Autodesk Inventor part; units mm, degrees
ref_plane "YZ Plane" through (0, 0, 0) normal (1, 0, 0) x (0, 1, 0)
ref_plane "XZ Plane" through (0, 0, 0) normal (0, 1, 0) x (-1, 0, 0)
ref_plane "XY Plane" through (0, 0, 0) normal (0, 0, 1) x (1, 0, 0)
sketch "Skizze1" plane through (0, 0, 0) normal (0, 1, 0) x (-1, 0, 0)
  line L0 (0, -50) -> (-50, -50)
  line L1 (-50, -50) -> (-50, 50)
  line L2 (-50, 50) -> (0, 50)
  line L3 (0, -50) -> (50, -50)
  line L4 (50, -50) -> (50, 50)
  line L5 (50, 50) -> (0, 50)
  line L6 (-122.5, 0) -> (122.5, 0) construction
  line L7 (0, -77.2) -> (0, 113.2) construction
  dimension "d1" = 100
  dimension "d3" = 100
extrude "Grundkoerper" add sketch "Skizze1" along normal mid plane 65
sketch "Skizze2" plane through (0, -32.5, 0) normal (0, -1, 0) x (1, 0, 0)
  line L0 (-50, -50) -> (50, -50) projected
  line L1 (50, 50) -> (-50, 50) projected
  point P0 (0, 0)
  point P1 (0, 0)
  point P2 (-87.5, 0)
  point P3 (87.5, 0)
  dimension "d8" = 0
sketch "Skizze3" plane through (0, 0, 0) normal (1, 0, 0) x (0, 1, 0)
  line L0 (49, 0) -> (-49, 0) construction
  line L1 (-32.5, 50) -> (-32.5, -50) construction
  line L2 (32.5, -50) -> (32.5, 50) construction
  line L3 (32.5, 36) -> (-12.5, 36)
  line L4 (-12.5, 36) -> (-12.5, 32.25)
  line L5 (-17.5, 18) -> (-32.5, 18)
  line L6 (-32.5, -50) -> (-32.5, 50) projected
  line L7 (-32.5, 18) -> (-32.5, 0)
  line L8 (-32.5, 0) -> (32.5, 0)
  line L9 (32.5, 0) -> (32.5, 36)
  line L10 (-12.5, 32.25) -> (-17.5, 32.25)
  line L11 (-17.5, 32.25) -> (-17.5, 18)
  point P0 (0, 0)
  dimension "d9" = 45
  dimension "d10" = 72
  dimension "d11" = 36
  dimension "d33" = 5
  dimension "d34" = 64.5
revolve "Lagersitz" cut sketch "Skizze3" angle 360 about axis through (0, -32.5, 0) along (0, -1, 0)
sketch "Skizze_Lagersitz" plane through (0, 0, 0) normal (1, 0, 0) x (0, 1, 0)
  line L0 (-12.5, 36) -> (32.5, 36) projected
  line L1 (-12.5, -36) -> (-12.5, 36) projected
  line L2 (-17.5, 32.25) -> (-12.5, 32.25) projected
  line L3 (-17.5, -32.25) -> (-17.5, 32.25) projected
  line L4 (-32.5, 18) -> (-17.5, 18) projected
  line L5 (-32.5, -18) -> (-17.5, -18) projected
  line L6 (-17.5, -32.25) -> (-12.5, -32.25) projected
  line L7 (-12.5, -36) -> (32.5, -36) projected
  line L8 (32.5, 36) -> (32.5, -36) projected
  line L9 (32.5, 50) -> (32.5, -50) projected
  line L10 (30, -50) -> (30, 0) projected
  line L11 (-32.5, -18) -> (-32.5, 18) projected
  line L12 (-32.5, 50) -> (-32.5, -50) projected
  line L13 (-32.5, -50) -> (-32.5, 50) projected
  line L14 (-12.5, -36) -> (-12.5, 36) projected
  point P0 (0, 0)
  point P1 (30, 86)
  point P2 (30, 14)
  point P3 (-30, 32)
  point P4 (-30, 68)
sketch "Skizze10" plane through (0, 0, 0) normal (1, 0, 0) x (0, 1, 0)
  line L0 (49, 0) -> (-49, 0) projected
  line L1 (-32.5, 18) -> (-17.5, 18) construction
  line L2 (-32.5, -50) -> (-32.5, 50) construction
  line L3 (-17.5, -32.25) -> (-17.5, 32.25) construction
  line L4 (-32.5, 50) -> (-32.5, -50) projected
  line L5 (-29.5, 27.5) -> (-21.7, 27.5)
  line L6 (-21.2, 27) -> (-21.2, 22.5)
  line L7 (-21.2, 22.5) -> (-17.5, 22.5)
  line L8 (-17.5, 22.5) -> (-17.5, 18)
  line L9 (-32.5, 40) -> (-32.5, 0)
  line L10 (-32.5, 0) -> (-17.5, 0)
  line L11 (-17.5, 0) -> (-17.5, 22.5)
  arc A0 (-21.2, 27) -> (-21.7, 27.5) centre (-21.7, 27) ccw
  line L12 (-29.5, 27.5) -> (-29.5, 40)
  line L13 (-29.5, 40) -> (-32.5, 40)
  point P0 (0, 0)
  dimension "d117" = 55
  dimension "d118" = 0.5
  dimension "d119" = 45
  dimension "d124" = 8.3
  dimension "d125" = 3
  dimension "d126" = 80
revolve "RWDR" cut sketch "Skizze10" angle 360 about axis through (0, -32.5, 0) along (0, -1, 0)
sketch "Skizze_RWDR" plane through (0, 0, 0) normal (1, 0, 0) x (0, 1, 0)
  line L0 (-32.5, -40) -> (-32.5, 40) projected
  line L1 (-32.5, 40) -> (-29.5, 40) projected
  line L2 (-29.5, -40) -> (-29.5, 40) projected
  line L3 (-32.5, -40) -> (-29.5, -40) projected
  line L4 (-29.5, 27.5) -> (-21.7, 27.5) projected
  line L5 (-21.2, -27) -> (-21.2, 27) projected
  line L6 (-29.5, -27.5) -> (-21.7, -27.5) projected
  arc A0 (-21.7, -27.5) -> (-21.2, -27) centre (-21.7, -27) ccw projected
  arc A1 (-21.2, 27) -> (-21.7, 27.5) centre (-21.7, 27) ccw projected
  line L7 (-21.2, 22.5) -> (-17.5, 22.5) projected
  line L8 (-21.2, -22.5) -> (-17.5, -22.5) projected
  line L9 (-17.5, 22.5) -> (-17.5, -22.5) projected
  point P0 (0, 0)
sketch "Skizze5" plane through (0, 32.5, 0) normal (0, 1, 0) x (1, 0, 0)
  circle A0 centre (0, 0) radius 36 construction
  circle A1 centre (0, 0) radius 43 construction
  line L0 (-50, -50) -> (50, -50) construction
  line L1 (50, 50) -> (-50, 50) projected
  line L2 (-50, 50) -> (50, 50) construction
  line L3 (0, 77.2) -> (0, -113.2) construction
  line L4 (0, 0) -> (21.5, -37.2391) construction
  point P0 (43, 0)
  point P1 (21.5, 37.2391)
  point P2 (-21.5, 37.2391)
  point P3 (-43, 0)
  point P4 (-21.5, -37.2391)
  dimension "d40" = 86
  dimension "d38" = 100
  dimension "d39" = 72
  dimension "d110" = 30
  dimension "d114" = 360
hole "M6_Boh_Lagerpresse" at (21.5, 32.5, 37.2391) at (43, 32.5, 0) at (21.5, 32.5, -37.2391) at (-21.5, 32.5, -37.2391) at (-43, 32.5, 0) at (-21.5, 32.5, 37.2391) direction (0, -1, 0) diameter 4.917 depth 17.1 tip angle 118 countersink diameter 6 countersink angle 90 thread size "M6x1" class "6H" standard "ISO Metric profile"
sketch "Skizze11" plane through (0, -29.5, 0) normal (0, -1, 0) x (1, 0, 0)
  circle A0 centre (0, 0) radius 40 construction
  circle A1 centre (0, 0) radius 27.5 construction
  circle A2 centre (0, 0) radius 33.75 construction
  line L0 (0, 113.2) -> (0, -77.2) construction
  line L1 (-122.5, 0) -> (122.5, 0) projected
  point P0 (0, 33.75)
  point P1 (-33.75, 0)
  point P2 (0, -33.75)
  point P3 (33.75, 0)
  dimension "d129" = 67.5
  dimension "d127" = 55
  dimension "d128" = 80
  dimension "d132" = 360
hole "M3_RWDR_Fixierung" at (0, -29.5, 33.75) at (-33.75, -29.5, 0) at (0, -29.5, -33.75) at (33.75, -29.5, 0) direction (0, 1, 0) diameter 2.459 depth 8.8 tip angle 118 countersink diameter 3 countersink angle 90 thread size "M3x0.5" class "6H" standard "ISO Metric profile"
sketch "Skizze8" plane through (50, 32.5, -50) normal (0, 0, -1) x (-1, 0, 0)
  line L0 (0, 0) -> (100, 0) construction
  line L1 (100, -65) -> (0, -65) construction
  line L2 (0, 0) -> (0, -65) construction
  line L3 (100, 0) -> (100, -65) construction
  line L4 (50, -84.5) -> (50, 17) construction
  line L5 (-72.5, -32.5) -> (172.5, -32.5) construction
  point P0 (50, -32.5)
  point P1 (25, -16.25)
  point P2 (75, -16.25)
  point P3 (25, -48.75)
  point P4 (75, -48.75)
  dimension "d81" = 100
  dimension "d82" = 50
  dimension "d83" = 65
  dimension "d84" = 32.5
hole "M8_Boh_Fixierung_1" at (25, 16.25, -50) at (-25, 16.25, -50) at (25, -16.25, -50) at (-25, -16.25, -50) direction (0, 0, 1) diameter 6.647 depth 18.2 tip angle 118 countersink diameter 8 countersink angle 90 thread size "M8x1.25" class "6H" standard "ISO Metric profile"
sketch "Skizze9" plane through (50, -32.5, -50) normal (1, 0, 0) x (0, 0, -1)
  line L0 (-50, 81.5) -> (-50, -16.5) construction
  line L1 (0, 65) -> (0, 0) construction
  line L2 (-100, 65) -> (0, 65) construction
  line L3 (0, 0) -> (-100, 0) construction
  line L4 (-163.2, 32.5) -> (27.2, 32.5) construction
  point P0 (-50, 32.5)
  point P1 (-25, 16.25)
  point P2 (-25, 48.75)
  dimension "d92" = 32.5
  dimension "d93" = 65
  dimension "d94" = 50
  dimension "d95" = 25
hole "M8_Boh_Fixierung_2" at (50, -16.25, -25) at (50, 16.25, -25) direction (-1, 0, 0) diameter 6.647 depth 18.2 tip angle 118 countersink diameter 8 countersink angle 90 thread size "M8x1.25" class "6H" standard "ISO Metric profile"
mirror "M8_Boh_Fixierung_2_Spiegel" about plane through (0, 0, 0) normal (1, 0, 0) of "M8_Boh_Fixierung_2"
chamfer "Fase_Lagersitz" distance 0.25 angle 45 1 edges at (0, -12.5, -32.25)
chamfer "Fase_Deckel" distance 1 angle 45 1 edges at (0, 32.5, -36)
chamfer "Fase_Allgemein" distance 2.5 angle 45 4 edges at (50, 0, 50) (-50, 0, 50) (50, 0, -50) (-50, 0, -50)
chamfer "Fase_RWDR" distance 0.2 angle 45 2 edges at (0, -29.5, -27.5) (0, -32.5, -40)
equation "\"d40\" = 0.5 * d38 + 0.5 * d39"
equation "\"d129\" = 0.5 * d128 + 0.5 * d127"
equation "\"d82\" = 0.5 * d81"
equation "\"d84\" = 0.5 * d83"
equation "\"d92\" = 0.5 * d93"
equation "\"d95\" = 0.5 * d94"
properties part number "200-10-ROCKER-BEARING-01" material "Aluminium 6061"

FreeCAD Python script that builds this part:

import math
import FreeCAD as App
import Part
import Sketcher

V = App.Vector


def edges_at(feature, points):
    """Names of the edges that pass closest to the given points."""
    edges = feature.Shape.Edges
    near = lambda p: min(range(len(edges)), key=lambda i: edges[i].distToShape(Part.Vertex(*p))[0])
    return sorted({f"Edge{near(p) + 1}" for p in points})


def add_polygon(sketch, points):
    """Adds a closed chain of lines whose ends are joined by coincident constraints."""
    first, n = sketch.GeometryCount, len(points)
    for a, b in zip(points, points[1:] + points[:1]):
        sketch.addGeometry(Part.LineSegment(App.Vector(*a, 0), App.Vector(*b, 0)), False)
    for i in range(n):
        sketch.addConstraint(Sketcher.Constraint("Coincident", first + i, 2, first + (i + 1) % n, 1))

doc = App.newDocument("Part")
body = doc.addObject("PartDesign::Body", "Body")

sketch1 = doc.addObject("Sketcher::SketchObject", "Sketch")
body.addObject(sketch1)
sketch1.AttachmentSupport = (doc.XZ_Plane, [""])
sketch1.MapMode = "FlatFace"
add_polygon(sketch1, [(50, -50), (-50, -50), (-50, 50), (50, 50)])
sketch1.addConstraint(Sketcher.Constraint("Horizontal", 0))
sketch1.addConstraint(Sketcher.Constraint("Vertical", 1))
sketch1.addConstraint(Sketcher.Constraint("Horizontal", 2))
sketch1.addConstraint(Sketcher.Constraint("Vertical", 3))
sketch1.addConstraint(Sketcher.Constraint("Symmetric", 0, 2, 2, 2, -1, 1))
sketch1.addConstraint(Sketcher.Constraint("Equal", 2, 1))
sketch1.addConstraint(Sketcher.Constraint("DistanceX", 0, 2, 0, 1, 100.0))
pad1 = doc.addObject("PartDesign::Pad", "Pad")
body.addObject(pad1)
pad1.Profile = sketch1
pad1.Length = 65
pad1.Midplane = True

sketch2 = doc.addObject("Sketcher::SketchObject", "Sketch001")
body.addObject(sketch2)
sketch2.AttachmentSupport = (doc.YZ_Plane, [""])
sketch2.MapMode = "FlatFace"
add_polygon(sketch2, [(32.5, 0), (32.5, 36), (-12.5, 36), (-12.5, 32.2), (-17.5, 32.2), (-17.5, 18), (-32.5, 18), (-32.5, 0)])
sketch2.addConstraint(Sketcher.Constraint("Vertical", 0))
sketch2.addConstraint(Sketcher.Constraint("Horizontal", 1))
sketch2.addConstraint(Sketcher.Constraint("Vertical", 2))
sketch2.addConstraint(Sketcher.Constraint("Horizontal", 3))
sketch2.addConstraint(Sketcher.Constraint("Vertical", 4))
sketch2.addConstraint(Sketcher.Constraint("Horizontal", 5))
sketch2.addConstraint(Sketcher.Constraint("Vertical", 6))
sketch2.addConstraint(Sketcher.Constraint("Horizontal", 7))
sketch2.addConstraint(Sketcher.Constraint("Symmetric", 6, 2, 7, 2, -1, 1))
sketch2.addConstraint(Sketcher.Constraint("DistanceX", 1, 2, 1, 1, 45.0))
sketch2.addConstraint(Sketcher.Constraint("DistanceX", 3, 2, 3, 1, 5.0))
sketch2.addConstraint(Sketcher.Constraint("DistanceY", 0, 1, 0, 2, 36.0))
sketch2.addConstraint(Sketcher.Constraint("DistanceX", 5, 2, 5, 1, 15.0))
sketch2.addConstraint(Sketcher.Constraint("DistanceY", 6, 2, 6, 1, 18.0))
sketch2.addConstraint(Sketcher.Constraint("DistanceY", 2, 2, 2, 1, 3.75))
groove = doc.addObject("PartDesign::Groove", "Groove")
body.addObject(groove)
groove.Profile = sketch2
groove.ReferenceAxis = (sketch2, ["H_Axis"])
groove.Angle = 360

sketch3 = doc.addObject("Sketcher::SketchObject", "Sketch002")
body.addObject(sketch3)
sketch3.AttachmentSupport = (doc.YZ_Plane, [""])
sketch3.MapMode = "FlatFace"
sketch3.addGeometry(Part.LineSegment(V(-32.5, 0, 0), V(-17.5, 0, 0)), False)
sketch3.addGeometry(Part.LineSegment(V(-17.5, 0, 0), V(-17.5, 22.5, 0)), False)
sketch3.addGeometry(Part.LineSegment(V(-17.5, 22.5, 0), V(-21.2, 22.5, 0)), False)
sketch3.addGeometry(Part.LineSegment(V(-21.2, 22.5, 0), V(-21.2, 27, 0)), False)
sketch3.addGeometry(Part.ArcOfCircle(Part.Circle(V(-21.7, 27, 0), V(0, 0, 1), 0.5), math.radians(0), math.radians(90)), False)
sketch3.addGeometry(Part.LineSegment(V(-21.7, 27.5, 0), V(-29.5, 27.5, 0)), False)
sketch3.addGeometry(Part.LineSegment(V(-29.5, 27.5, 0), V(-29.5, 40, 0)), False)
sketch3.addGeometry(Part.LineSegment(V(-29.5, 40, 0), V(-32.5, 40, 0)), False)
sketch3.addGeometry(Part.LineSegment(V(-32.5, 40, 0), V(-32.5, 0, 0)), False)
sketch3.addConstraint(Sketcher.Constraint("Coincident", 0, 2, 1, 1))
sketch3.addConstraint(Sketcher.Constraint("Coincident", 1, 2, 2, 1))
sketch3.addConstraint(Sketcher.Constraint("Coincident", 2, 2, 3, 1))
sketch3.addConstraint(Sketcher.Constraint("Tangent", 3, 2, 4, 1))
sketch3.addConstraint(Sketcher.Constraint("Tangent", 4, 2, 5, 1))
sketch3.addConstraint(Sketcher.Constraint("Coincident", 5, 2, 6, 1))
sketch3.addConstraint(Sketcher.Constraint("Coincident", 6, 2, 7, 1))
sketch3.addConstraint(Sketcher.Constraint("Coincident", 7, 2, 8, 1))
sketch3.addConstraint(Sketcher.Constraint("Coincident", 8, 2, 0, 1))
sketch3.addConstraint(Sketcher.Constraint("Horizontal", 0))
sketch3.addConstraint(Sketcher.Constraint("Vertical", 1))
sketch3.addConstraint(Sketcher.Constraint("Horizontal", 2))
sketch3.addConstraint(Sketcher.Constraint("Vertical", 3))
sketch3.addConstraint(Sketcher.Constraint("Horizontal", 5))
sketch3.addConstraint(Sketcher.Constraint("Vertical", 6))
sketch3.addConstraint(Sketcher.Constraint("Horizontal", 7))
sketch3.addConstraint(Sketcher.Constraint("Vertical", 8))
sketch3.addConstraint(Sketcher.Constraint("PointOnObject", 0, 2, -1))
sketch3.addConstraint(Sketcher.Constraint("Radius", 4, 0.5))
sketch3.addConstraint(Sketcher.Constraint("DistanceX", 7, 2, 7, 1, 3.0))
sketch3.addConstraint(Sketcher.Constraint("DistanceX", 5, 2, 3, 2, 8.3))
sketch3.addConstraint(Sketcher.Constraint("DistanceX", 0, 1, 0, 2, 15.0))
sketch3.addConstraint(Sketcher.Constraint("DistanceY", 8, 2, 8, 1, 40.0))
sketch3.addConstraint(Sketcher.Constraint("DistanceY", 1, 1, 1, 2, 22.5))
sketch3.addConstraint(Sketcher.Constraint("DistanceY", 3, 1, 3, 2, 4.5))
sketch3.addConstraint(Sketcher.Constraint("DistanceX", 4, 3, -1, 1, 21.7))
groove2 = doc.addObject("PartDesign::Groove", "Groove001")
body.addObject(groove2)
groove2.Profile = sketch3
groove2.ReferenceAxis = (sketch3, ["H_Axis"])
groove2.Angle = 360

sketch4 = doc.addObject("Sketcher::SketchObject", "Sketch003")
body.addObject(sketch4)
sketch4.AttachmentSupport = (doc.XZ_Plane, [""])
sketch4.MapMode = "FlatFace"
sketch4.AttachmentOffset = App.Placement(V(0, 0, -32.5), App.Rotation())
sketch4.addGeometry(Part.Circle(V(21.5, 37.2, 0), V(0, 0, 1), 2.5), False)
sketch4.addGeometry(Part.Circle(V(43, 0, 0), V(0, 0, 1), 2.5), False)
sketch4.addGeometry(Part.Circle(V(21.5, -37.2, 0), V(0, 0, 1), 2.5), False)
sketch4.addGeometry(Part.Circle(V(-21.5, -37.2, 0), V(0, 0, 1), 2.5), False)
sketch4.addGeometry(Part.Circle(V(-43, 0, 0), V(0, 0, 1), 2.5), False)
sketch4.addGeometry(Part.Circle(V(-21.5, 37.2, 0), V(0, 0, 1), 2.5), False)
sketch4.addConstraint(Sketcher.Constraint("Equal", 0, 1))
sketch4.addConstraint(Sketcher.Constraint("Equal", 1, 2))
sketch4.addConstraint(Sketcher.Constraint("Equal", 2, 3))
sketch4.addConstraint(Sketcher.Constraint("Equal", 3, 4))
sketch4.addConstraint(Sketcher.Constraint("Equal", 4, 5))
sketch4.addConstraint(Sketcher.Constraint("Symmetric", 0, 3, 3, 3, -1, 1))
sketch4.addConstraint(Sketcher.Constraint("Symmetric", 1, 3, 4, 3, -1, 1))
sketch4.addConstraint(Sketcher.Constraint("Symmetric", 2, 3, 5, 3, -1, 1))
sketch4.addConstraint(Sketcher.Constraint("Symmetric", 2, 3, 3, 3, -2))
sketch4.addConstraint(Sketcher.Constraint("PointOnObject", 1, 3, -1))
sketch4.addConstraint(Sketcher.Constraint("Diameter", 0, 4.917))
sketch4.addConstraint(Sketcher.Constraint("DistanceX", -1, 1, 1, 3, 43.0))
sketch4.addConstraint(Sketcher.Constraint("DistanceX", 3, 3, 2, 3, 43.0))
sketch4.addConstraint(Sketcher.Constraint("DistanceY", -1, 1, 0, 3, 37.239))
doc.recompute()
hole = doc.addObject("PartDesign::Hole", "Hole")
body.addObject(hole)
hole.Profile = sketch4
hole.ThreadType = "None"
hole.Diameter = 4.917
hole.DepthType = "Dimension"
hole.Depth = 17.1
hole.DrillPoint = "Angled"
hole.DrillPointAngle = 118
hole.HoleCutType = "Countersink"
hole.HoleCutDiameter = 6
hole.HoleCutCountersinkAngle = 90
hole.Reversed = True

sketch5 = doc.addObject("Sketcher::SketchObject", "Sketch004")
body.addObject(sketch5)
sketch5.AttachmentSupport = (doc.XZ_Plane, [""])
sketch5.MapMode = "FlatFace"
sketch5.AttachmentOffset = App.Placement(V(0, 0, 29.5), App.Rotation())
sketch5.addGeometry(Part.Circle(V(0, 33.8, 0), V(0, 0, 1), 1.2), False)
sketch5.addGeometry(Part.Circle(V(-33.8, 0, 0), V(0, 0, 1), 1.2), False)
sketch5.addGeometry(Part.Circle(V(0, -33.8, 0), V(0, 0, 1), 1.2), False)
sketch5.addGeometry(Part.Circle(V(33.8, 0, 0), V(0, 0, 1), 1.2), False)
sketch5.addConstraint(Sketcher.Constraint("Equal", 0, 1))
sketch5.addConstraint(Sketcher.Constraint("Equal", 1, 2))
sketch5.addConstraint(Sketcher.Constraint("Equal", 2, 3))
sketch5.addConstraint(Sketcher.Constraint("Symmetric", 0, 3, 2, 3, -1, 1))
sketch5.addConstraint(Sketcher.Constraint("Symmetric", 1, 3, 3, 3, -1, 1))
sketch5.addConstraint(Sketcher.Constraint("PointOnObject", 0, 3, -2))
sketch5.addConstraint(Sketcher.Constraint("PointOnObject", 1, 3, -1))
sketch5.addConstraint(Sketcher.Constraint("Diameter", 0, 2.459))
sketch5.addConstraint(Sketcher.Constraint("DistanceY", 2, 3, 0, 3, 67.5))
sketch5.addConstraint(Sketcher.Constraint("DistanceX", 1, 3, 3, 3, 67.5))
doc.recompute()
hole2 = doc.addObject("PartDesign::Hole", "Hole001")
body.addObject(hole2)
hole2.Profile = sketch5
hole2.ThreadType = "None"
hole2.Diameter = 2.459
hole2.DepthType = "Dimension"
hole2.Depth = 8.8
hole2.DrillPoint = "Angled"
hole2.DrillPointAngle = 118
hole2.HoleCutType = "Countersink"
hole2.HoleCutDiameter = 3
hole2.HoleCutCountersinkAngle = 90

sketch6 = doc.addObject("Sketcher::SketchObject", "Sketch005")
body.addObject(sketch6)
sketch6.AttachmentSupport = (doc.XY_Plane, [""])
sketch6.MapMode = "FlatFace"
sketch6.AttachmentOffset = App.Placement(V(0, 0, -50), App.Rotation())
sketch6.addGeometry(Part.Circle(V(25, 16.2, 0), V(0, 0, 1), 3.3), False)
sketch6.addGeometry(Part.Circle(V(-25, 16.2, 0), V(0, 0, 1), 3.3), False)
sketch6.addGeometry(Part.Circle(V(25, -16.2, 0), V(0, 0, 1), 3.3), False)
sketch6.addGeometry(Part.Circle(V(-25, -16.2, 0), V(0, 0, 1), 3.3), False)
sketch6.addConstraint(Sketcher.Constraint("Equal", 0, 1))
sketch6.addConstraint(Sketcher.Constraint("Equal", 1, 2))
sketch6.addConstraint(Sketcher.Constraint("Equal", 2, 3))
sketch6.addConstraint(Sketcher.Constraint("Symmetric", 1, 3, 2, 3, -1, 1))
sketch6.addConstraint(Sketcher.Constraint("Symmetric", 0, 3, 3, 3, -1, 1))
sketch6.addConstraint(Sketcher.Constraint("Symmetric", 0, 3, 1, 3, -2))
sketch6.addConstraint(Sketcher.Constraint("Diameter", 0, 6.647))
sketch6.addConstraint(Sketcher.Constraint("DistanceX", -1, 1, 0, 3, 25.0))
sketch6.addConstraint(Sketcher.Constraint("DistanceY", 2, 3, 0, 3, 32.5))
doc.recompute()
hole3 = doc.addObject("PartDesign::Hole", "Hole002")
body.addObject(hole3)
hole3.Profile = sketch6
hole3.ThreadType = "None"
hole3.Diameter = 6.647
hole3.DepthType = "Dimension"
hole3.Depth = 18.2
hole3.DrillPoint = "Angled"
hole3.DrillPointAngle = 118
hole3.HoleCutType = "Countersink"
hole3.HoleCutDiameter = 8
hole3.HoleCutCountersinkAngle = 90
hole3.Reversed = True

sketch7 = doc.addObject("Sketcher::SketchObject", "Sketch006")
body.addObject(sketch7)
sketch7.AttachmentSupport = (doc.YZ_Plane, [""])
sketch7.MapMode = "FlatFace"
sketch7.AttachmentOffset = App.Placement(V(0, 0, 50), App.Rotation())
sketch7.addGeometry(Part.Circle(V(-16.2, -25, 0), V(0, 0, 1), 3.3), False)
sketch7.addGeometry(Part.Circle(V(16.2, -25, 0), V(0, 0, 1), 3.3), False)
sketch7.addConstraint(Sketcher.Constraint("Equal", 0, 1))
sketch7.addConstraint(Sketcher.Constraint("Symmetric", 0, 3, 1, 3, -2))
sketch7.addConstraint(Sketcher.Constraint("Diameter", 0, 6.647))
sketch7.addConstraint(Sketcher.Constraint("DistanceY", 0, 3, -1, 1, 25.0))
sketch7.addConstraint(Sketcher.Constraint("DistanceX", 0, 3, 1, 3, 32.5))
doc.recompute()
hole4 = doc.addObject("PartDesign::Hole", "Hole003")
body.addObject(hole4)
hole4.Profile = sketch7
hole4.ThreadType = "None"
hole4.Diameter = 6.647
hole4.DepthType = "Dimension"
hole4.Depth = 18.2
hole4.DrillPoint = "Angled"
hole4.DrillPointAngle = 118
hole4.HoleCutType = "Countersink"
hole4.HoleCutDiameter = 8
hole4.HoleCutCountersinkAngle = 90
doc.recompute()

mirrored = doc.addObject("PartDesign::Mirrored", "Mirrored")
body.addObject(mirrored)
mirrored.Originals = [hole4]
mirrored.MirrorPlane = (doc.YZ_Plane, [""])
body.Tip = mirrored
doc.recompute()

chamfer = doc.addObject("PartDesign::Chamfer", "Chamfer")
body.addObject(chamfer)
chamfer.Base = (mirrored, edges_at(mirrored, [(0, -12.5, -32.25)]))
chamfer.Size = 0.25
doc.recompute()

chamfer2 = doc.addObject("PartDesign::Chamfer", "Chamfer001")
body.addObject(chamfer2)
chamfer2.Base = (chamfer, edges_at(chamfer, [(0, 32.5, -36)]))
chamfer2.Size = 1
doc.recompute()

chamfer3 = doc.addObject("PartDesign::Chamfer", "Chamfer002")
body.addObject(chamfer3)
chamfer3.Base = (chamfer2, edges_at(chamfer2, [
    (50, 0, 50),
    (-50, 0, 50),
    (50, 0, -50),
    (-50, 0, -50),
]))
chamfer3.Size = 2.5
doc.recompute()

chamfer4 = doc.addObject("PartDesign::Chamfer", "Chamfer003")
body.addObject(chamfer4)
chamfer4.Base = (chamfer3, edges_at(chamfer3, [(0, -29.5, -27.5), (0, -32.5, -40)]))
chamfer4.Size = 0.2

doc.recompute()
